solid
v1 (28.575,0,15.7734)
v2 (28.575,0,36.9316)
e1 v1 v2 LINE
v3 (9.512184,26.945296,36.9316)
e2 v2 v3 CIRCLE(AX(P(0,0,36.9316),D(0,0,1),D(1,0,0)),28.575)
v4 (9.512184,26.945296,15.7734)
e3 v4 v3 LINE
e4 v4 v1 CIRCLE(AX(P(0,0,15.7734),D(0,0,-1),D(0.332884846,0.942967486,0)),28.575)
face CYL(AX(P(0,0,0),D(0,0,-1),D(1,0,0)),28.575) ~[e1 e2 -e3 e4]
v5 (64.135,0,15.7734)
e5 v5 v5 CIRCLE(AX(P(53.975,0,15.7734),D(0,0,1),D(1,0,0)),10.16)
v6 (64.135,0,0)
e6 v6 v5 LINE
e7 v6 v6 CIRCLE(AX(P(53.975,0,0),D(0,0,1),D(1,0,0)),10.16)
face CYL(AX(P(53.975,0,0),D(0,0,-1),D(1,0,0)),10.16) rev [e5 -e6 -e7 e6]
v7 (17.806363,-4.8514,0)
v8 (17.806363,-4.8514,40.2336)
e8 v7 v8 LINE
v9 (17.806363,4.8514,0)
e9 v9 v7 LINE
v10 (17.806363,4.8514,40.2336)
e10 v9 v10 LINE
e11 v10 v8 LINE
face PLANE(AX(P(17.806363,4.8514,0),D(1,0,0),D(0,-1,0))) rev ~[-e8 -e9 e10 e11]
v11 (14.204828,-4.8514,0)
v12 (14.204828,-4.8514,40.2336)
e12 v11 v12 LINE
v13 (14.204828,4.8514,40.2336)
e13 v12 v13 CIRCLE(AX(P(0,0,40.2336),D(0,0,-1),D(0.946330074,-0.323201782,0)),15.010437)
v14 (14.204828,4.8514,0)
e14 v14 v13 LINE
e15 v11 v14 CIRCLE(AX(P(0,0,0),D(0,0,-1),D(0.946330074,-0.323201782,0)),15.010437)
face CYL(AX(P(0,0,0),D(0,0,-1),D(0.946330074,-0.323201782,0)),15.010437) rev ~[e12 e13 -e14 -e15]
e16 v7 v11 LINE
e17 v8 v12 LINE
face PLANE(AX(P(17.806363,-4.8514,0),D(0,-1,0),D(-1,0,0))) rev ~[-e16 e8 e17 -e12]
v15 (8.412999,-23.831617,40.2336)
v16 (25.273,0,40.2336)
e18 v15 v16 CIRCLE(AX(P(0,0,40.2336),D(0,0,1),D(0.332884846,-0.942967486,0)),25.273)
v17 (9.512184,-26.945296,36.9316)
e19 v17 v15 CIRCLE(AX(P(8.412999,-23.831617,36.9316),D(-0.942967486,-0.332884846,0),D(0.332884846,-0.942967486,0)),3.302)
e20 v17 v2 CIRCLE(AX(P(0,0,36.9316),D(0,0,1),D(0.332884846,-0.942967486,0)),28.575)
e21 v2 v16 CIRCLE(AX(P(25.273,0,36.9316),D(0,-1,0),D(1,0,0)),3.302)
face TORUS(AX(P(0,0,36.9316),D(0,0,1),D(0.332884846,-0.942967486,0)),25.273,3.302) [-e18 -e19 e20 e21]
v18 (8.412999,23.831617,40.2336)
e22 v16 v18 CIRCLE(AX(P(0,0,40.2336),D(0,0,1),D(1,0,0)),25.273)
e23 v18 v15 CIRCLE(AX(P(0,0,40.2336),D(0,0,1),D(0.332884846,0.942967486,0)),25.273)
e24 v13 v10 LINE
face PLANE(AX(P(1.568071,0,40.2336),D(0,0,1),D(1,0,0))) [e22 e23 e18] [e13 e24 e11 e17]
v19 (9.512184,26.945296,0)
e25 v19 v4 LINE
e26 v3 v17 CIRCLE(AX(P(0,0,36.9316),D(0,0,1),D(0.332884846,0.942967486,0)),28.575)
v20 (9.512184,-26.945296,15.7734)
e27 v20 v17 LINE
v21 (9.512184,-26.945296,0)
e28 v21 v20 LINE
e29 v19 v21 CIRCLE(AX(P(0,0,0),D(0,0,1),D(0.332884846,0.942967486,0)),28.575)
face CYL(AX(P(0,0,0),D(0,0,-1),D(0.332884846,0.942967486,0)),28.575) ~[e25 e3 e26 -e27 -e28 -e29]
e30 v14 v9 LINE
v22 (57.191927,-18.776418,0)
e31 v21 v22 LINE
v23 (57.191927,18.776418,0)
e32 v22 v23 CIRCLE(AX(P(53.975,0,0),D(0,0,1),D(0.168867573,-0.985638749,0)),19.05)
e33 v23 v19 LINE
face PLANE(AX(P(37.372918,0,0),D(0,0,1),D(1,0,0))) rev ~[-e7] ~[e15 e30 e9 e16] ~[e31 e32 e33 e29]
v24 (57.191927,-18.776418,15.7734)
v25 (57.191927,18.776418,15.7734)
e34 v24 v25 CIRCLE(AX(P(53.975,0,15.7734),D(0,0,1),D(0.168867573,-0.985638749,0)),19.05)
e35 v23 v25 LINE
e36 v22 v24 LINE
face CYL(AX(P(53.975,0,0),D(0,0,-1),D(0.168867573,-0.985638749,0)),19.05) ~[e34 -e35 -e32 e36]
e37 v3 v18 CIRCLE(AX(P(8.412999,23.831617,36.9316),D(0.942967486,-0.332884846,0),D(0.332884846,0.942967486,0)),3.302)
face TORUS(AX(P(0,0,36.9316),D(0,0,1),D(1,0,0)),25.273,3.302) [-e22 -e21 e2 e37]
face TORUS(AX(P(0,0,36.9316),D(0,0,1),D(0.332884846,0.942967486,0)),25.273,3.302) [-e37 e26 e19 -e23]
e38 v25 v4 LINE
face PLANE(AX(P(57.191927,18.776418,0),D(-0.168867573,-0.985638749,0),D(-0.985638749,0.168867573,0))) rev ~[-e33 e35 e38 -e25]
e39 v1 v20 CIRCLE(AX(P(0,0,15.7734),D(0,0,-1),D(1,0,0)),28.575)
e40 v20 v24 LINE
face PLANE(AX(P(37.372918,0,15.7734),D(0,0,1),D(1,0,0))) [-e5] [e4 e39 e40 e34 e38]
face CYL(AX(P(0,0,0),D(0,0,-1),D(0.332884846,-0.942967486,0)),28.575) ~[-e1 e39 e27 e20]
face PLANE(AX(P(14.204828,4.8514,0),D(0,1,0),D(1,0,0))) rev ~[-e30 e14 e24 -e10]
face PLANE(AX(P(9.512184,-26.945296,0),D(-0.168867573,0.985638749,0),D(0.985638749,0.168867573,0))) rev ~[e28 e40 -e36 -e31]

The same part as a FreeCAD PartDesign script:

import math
import FreeCAD as App
import Part
import Sketcher
Q = App.Units.Quantity


def edges_at(feature, points):
    """Names of the edges that pass closest to the given points."""
    edges = feature.Shape.Edges
    near = lambda p: min(range(len(edges)), key=lambda i: edges[i].distToShape(Part.Vertex(*p))[0])
    return sorted({f"Edge{near(p) + 1}" for p in points})

doc = App.newDocument("Part")
body = doc.addObject("PartDesign::Body", "Body")

# Sketch on XY plane
sketch1 = body.newObject("Sketcher::SketchObject", "Sketch")
sketch1.AttachmentSupport = (doc.getObject("XY_Plane"), [""])
sketch1.MapMode = "FlatFace"
sketch1.addGeometry(Part.ArcOfCircle(Part.Circle(App.Vector(0, 0, 0), App.Vector(0, 0, 1), 28.575), math.radians(-70.556032), math.radians(0)), False)
sketch1.addGeometry(Part.ArcOfCircle(Part.Circle(App.Vector(0, 0, 0), App.Vector(0, 0, 1), 28.575), math.radians(0), math.radians(70.556032)), False)
sketch1.addGeometry(Part.ArcOfCircle(Part.Circle(App.Vector(0, 0, 0), App.Vector(0, 0, 1), 28.575), math.radians(70.556032), math.radians(289.443968)), False)
sketch1.addGeometry(Part.LineSegment(App.Vector(17.806363, -4.8514, 0), App.Vector(14.204828, -4.8514, 0)), False)
sketch1.addGeometry(Part.ArcOfCircle(Part.Circle(App.Vector(0, 0, 0), App.Vector(0, 0, 1), 15.010437), math.radians(18.856666), math.radians(341.143334)), False)
sketch1.addGeometry(Part.LineSegment(App.Vector(14.204828, 4.8514, 0), App.Vector(17.806363, 4.8514, 0)), False)
sketch1.addGeometry(Part.LineSegment(App.Vector(17.806363, 4.8514, 0), App.Vector(17.806363, -4.8514, 0)), False)
sketch1.addConstraint(Sketcher.Constraint("Tangent", 0, 2, 1, 1))
sketch1.addConstraint(Sketcher.Constraint("Tangent", 1, 2, 2, 1))
sketch1.addConstraint(Sketcher.Constraint("Tangent", 2, 2, 0, 1))
sketch1.addConstraint(Sketcher.Constraint("Coincident", 3, 2, 4, 2))
sketch1.addConstraint(Sketcher.Constraint("Coincident", 4, 1, 5, 1))
sketch1.addConstraint(Sketcher.Constraint("Coincident", 5, 2, 6, 1))
sketch1.addConstraint(Sketcher.Constraint("Coincident", 6, 2, 3, 1))
sketch1.addConstraint(Sketcher.Constraint("Horizontal", 3))
sketch1.addConstraint(Sketcher.Constraint("Horizontal", 5))
sketch1.addConstraint(Sketcher.Constraint("Vertical", 6))
sketch1.addConstraint(Sketcher.Constraint("Coincident", 0, 3, -1, 1))
sketch1.addConstraint(Sketcher.Constraint("Coincident", 4, 3, -1, 1))
sketch1.addConstraint(Sketcher.Constraint("PointOnObject", 0, 2, -1))
sketch1.addConstraint(Sketcher.Constraint("Vertical", 1, 2, 2, 2))
sketch1.addConstraint(Sketcher.Constraint("Vertical", 3, 2, 4, 1))
sketch1.addConstraint(Sketcher.Constraint("Radius", 0, Q("1.125 in")))
sketch1.addConstraint(Sketcher.Constraint("DistanceY", 6, 2, 6, 1, Q("0.382 in")))
sketch1.addConstraint(Sketcher.Constraint("Radius", 4, Q("15.010437 mm")))
sketch1.addConstraint(Sketcher.Constraint("DistanceX", 3, 2, 3, 1, Q("3.601535 mm")))
sketch1.addConstraint(Sketcher.Constraint("DistanceX", -1, 1, 1, 2, Q("9.512184 mm")))
pad1 = body.newObject("PartDesign::Pad", "Pad")
pad1.Profile = sketch1
pad1.Length = Q("1.584 in")

# Sketch on XY plane
sketch2 = body.newObject("Sketcher::SketchObject", "Sketch001")
sketch2.AttachmentSupport = (doc.getObject("XY_Plane"), [""])
sketch2.MapMode = "FlatFace"
sketch2.addGeometry(Part.LineSegment(App.Vector(57.191927, 18.776418, 0), App.Vector(9.512184, 26.945296, 0)), False)
sketch2.addGeometry(Part.ArcOfCircle(Part.Circle(App.Vector(0, 0, 0), App.Vector(0, 0, 1), 28.575), math.radians(0), math.radians(70.556032)), False)
sketch2.addGeometry(Part.ArcOfCircle(Part.Circle(App.Vector(0, 0, 0), App.Vector(0, 0, 1), 28.575), math.radians(-70.556032), math.radians(0)), False)
sketch2.addGeometry(Part.LineSegment(App.Vector(9.512184, -26.945296, 0), App.Vector(57.191927, -18.776418, 0)), False)
sketch2.addGeometry(Part.ArcOfCircle(Part.Circle(App.Vector(53.975, 0, 0), App.Vector(0, 0, 1), 19.05), math.radians(-80.278016), math.radians(80.278016)), False)
sketch2.addGeometry(Part.Circle(App.Vector(53.975, 0, 0), App.Vector(0, 0, 1), 10.16), False)
sketch2.addConstraint(Sketcher.Constraint("Coincident", 0, 2, 1, 2))
sketch2.addConstraint(Sketcher.Constraint("Tangent", 1, 1, 2, 2))
sketch2.addConstraint(Sketcher.Constraint("Coincident", 2, 1, 3, 1))
sketch2.addConstraint(Sketcher.Constraint("Tangent", 3, 2, 4, 1))
sketch2.addConstraint(Sketcher.Constraint("Tangent", 4, 2, 0, 1))
sketch2.addConstraint(Sketcher.Constraint("Coincident", 1, 3, -1, 1))
sketch2.addConstraint(Sketcher.Constraint("Coincident", 5, 3, 4, 3))
sketch2.addConstraint(Sketcher.Constraint("Equal", 1, 2))
sketch2.addConstraint(Sketcher.Constraint("Symmetric", 3, 2, 4, 2, -1))
sketch2.addConstraint(Sketcher.Constraint("PointOnObject", 1, 1, -1))
sketch2.addConstraint(Sketcher.Constraint("Diameter", 5, Q("0.8 in")))
sketch2.addConstraint(Sketcher.Constraint("Radius", 4, Q("0.75 in")))
sketch2.addConstraint(Sketcher.Constraint("Radius", 1, Q("1.125 in")))
sketch2.addConstraint(Sketcher.Constraint("DistanceX", 1, 1, 4, 3, Q("1 in")))
sketch2.addConstraint(Sketcher.Constraint("Distance", 0, Q("48.374461 mm")))
pad2 = body.newObject("PartDesign::Pad", "Pad001")
pad2.Profile = sketch2
pad2.Length = Q("0.621 in")
doc.recompute()

fillet = body.newObject("PartDesign::Fillet", "Fillet")
fillet.Base = (pad2, edges_at(pad2, [(-28.575, 0, 40.234)]))
fillet.Radius = Q("0.13 in")

doc.recompute()
